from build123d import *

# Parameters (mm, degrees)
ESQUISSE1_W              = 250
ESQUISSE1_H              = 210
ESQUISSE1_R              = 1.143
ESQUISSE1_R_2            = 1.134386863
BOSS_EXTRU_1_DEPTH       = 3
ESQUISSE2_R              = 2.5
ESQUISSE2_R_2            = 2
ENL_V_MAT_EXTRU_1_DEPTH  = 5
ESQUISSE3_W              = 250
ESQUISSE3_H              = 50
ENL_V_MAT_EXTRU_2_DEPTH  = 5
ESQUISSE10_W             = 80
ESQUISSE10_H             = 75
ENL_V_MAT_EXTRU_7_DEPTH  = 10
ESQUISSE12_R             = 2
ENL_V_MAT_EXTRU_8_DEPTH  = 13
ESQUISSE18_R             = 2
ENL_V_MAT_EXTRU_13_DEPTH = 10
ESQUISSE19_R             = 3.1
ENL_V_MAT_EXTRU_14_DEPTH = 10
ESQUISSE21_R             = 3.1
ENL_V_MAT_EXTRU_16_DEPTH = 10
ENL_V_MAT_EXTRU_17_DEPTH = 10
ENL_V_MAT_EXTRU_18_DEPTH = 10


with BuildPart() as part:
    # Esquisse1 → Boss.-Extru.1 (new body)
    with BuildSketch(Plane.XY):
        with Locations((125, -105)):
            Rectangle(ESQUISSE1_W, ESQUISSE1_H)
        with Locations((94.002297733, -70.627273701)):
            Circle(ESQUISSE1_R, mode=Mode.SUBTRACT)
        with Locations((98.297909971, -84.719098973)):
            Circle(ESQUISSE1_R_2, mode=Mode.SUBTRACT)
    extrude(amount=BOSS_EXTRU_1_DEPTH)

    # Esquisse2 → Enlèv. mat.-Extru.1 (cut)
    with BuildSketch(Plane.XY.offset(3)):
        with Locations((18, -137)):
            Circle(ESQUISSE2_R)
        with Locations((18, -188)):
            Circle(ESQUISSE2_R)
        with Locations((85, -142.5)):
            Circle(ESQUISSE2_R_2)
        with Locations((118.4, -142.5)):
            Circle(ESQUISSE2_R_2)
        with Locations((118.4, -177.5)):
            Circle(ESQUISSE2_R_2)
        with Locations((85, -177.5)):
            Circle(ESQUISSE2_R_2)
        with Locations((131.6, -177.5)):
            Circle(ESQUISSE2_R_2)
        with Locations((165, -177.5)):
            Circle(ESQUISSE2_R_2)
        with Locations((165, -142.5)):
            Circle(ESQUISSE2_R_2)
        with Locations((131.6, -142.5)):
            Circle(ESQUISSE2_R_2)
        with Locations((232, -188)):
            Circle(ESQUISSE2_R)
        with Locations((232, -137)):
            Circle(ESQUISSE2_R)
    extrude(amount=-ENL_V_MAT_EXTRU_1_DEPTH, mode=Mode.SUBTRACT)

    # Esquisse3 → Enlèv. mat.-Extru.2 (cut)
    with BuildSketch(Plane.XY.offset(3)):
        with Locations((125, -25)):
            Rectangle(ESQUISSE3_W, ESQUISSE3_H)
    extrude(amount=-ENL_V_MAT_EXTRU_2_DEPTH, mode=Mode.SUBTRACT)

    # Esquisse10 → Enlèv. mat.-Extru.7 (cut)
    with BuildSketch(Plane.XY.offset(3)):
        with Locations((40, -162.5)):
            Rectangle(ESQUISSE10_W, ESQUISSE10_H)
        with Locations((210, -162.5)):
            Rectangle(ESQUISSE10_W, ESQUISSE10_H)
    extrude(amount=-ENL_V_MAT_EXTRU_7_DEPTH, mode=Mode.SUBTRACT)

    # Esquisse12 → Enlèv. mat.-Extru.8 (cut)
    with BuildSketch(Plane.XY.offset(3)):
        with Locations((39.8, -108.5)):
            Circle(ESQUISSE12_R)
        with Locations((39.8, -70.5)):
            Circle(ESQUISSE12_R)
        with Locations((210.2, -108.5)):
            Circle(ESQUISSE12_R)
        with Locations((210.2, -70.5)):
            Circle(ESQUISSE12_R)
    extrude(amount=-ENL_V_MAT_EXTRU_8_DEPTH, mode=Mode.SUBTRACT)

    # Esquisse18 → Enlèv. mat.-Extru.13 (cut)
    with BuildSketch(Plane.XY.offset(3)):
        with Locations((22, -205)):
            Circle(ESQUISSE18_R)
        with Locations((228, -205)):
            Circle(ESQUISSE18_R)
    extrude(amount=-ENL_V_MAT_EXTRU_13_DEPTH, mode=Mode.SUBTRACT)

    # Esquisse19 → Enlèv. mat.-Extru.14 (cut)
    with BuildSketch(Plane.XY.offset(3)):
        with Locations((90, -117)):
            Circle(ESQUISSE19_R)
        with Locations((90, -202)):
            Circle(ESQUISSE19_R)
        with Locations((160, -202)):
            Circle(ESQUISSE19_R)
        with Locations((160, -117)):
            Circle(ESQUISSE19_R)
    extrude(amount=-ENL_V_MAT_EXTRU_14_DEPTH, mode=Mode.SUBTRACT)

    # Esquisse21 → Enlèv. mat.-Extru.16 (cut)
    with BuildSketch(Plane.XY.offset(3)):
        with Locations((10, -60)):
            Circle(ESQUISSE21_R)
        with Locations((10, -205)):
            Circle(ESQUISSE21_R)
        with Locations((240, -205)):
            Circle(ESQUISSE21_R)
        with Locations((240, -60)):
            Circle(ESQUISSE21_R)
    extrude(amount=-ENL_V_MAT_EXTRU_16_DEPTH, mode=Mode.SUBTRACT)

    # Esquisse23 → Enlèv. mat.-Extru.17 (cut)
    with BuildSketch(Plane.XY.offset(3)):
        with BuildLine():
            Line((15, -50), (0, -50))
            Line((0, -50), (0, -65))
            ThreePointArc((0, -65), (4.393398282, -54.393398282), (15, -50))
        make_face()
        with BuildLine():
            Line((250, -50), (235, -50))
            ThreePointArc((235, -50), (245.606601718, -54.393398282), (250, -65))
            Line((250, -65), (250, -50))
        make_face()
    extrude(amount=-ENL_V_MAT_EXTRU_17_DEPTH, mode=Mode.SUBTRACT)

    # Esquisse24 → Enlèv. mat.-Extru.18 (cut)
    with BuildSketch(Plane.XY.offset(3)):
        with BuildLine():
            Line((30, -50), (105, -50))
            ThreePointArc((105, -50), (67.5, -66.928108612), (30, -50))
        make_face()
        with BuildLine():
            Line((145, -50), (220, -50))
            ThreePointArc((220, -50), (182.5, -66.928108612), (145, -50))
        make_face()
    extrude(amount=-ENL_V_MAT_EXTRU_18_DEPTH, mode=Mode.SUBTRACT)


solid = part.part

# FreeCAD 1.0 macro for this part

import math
import FreeCAD as App
import Part
import Sketcher
from FreeCAD import Vector


def add_polygon(sketch, points):
    """Adds a closed chain of lines whose ends are joined by coincident constraints."""
    first, n = sketch.GeometryCount, len(points)
    for a, b in zip(points, points[1:] + points[:1]):
        sketch.addGeometry(Part.LineSegment(App.Vector(*a, 0), App.Vector(*b, 0)), False)
    for i in range(n):
        sketch.addConstraint(Sketcher.Constraint("Coincident", first + i, 2, first + (i + 1) % n, 1))

doc = App.newDocument("Part")
body = doc.addObject("PartDesign::Body", "Body")

# Sketch on XY plane
sketch1 = body.newObject("Sketcher::SketchObject", "Sketch")
sketch1.AttachmentSupport = (doc.getObject("XY_Plane"), [""])
sketch1.MapMode = "FlatFace"
add_polygon(sketch1, [(0, 0), (0, -210), (250, -210), (250, 0)])  # lines 0-3
sketch1.addGeometry(Part.Circle(Vector(98.3, -84.7, 0), Vector(0, 0, 1), 1.1), False)  # 4
sketch1.addGeometry(Part.Circle(Vector(94, -70.6, 0), Vector(0, 0, 1), 1.1), False)  # 5
sketch1.addConstraint([
    Sketcher.Constraint("Vertical", 0),
    Sketcher.Constraint("Horizontal", 1),
    Sketcher.Constraint("Vertical", 2),
    Sketcher.Constraint("Horizontal", 3),
    Sketcher.Constraint("Coincident", 3, 2, -1, 1),
    Sketcher.Constraint("DistanceX", 1, 1, 1, 2, 250.0),
    Sketcher.Constraint("DistanceY", 0, 2, 0, 1, 210.0),
    Sketcher.Constraint("Diameter", 5, 2.286),
    Sketcher.Constraint("Diameter", 4, 2.268774),
    Sketcher.Constraint("DistanceY", 4, 3, -1, 1, 84.719099),
    Sketcher.Constraint("DistanceX", -1, 1, 4, 3, 98.29791),
    Sketcher.Constraint("DistanceX", -1, 1, 5, 3, 94.002298),
    Sketcher.Constraint("DistanceY", 5, 3, -1, 1, 70.627274),
])
pad1 = body.newObject("PartDesign::Pad", "Pad")
pad1.Profile = sketch1
pad1.Length = 3

# Sketch on XY plane
sketch2 = body.newObject("Sketcher::SketchObject", "Sketch001")
sketch2.AttachmentSupport = (doc.getObject("XY_Plane"), [""])
sketch2.MapMode = "FlatFace"
sketch2.AttachmentOffset = App.Placement(Vector(0, 0, 3), App.Rotation())
sketch2.addGeometry([
    Part.Circle(Vector(18, -137, 0), Vector(0, 0, 1), 2.5),  # 0
    Part.Circle(Vector(18, -188, 0), Vector(0, 0, 1), 2.5),  # 1
    Part.Circle(Vector(85, -142.5, 0), Vector(0, 0, 1), 2),  # 2
    Part.Circle(Vector(118.4, -142.5, 0), Vector(0, 0, 1), 2),  # 3
    Part.Circle(Vector(118.4, -177.5, 0), Vector(0, 0, 1), 2),  # 4
    Part.Circle(Vector(85, -177.5, 0), Vector(0, 0, 1), 2),  # 5
    Part.Circle(Vector(131.6, -177.5, 0), Vector(0, 0, 1), 2),  # 6
    Part.Circle(Vector(165, -177.5, 0), Vector(0, 0, 1), 2),  # 7
    Part.Circle(Vector(165, -142.5, 0), Vector(0, 0, 1), 2),  # 8
    Part.Circle(Vector(131.6, -142.5, 0), Vector(0, 0, 1), 2),  # 9
    Part.Circle(Vector(232, -188, 0), Vector(0, 0, 1), 2.5),  # 10
    Part.Circle(Vector(232, -137, 0), Vector(0, 0, 1), 2.5),  # 11
], False)
sketch2.addConstraint([
    Sketcher.Constraint("Equal", 0, 1),
    Sketcher.Constraint("Equal", 2, 3),
    Sketcher.Constraint("Equal", 3, 4),
    Sketcher.Constraint("Equal", 4, 5),
    Sketcher.Constraint("Equal", 5, 6),
    Sketcher.Constraint("Equal", 6, 7),
    Sketcher.Constraint("Equal", 7, 8),
    Sketcher.Constraint("Equal", 8, 9),
    Sketcher.Constraint("Equal", 1, 10),
    Sketcher.Constraint("Equal", 10, 11),
    Sketcher.Constraint("Horizontal", 2, 3, 3, 3),
    Sketcher.Constraint("Horizontal", 4, 3, 5, 3),
    Sketcher.Constraint("Horizontal", 5, 3, 6, 3),
    Sketcher.Constraint("Horizontal", 6, 3, 7, 3),
    Sketcher.Constraint("Horizontal", 3, 3, 8, 3),
    Sketcher.Constraint("Horizontal", 8, 3, 9, 3),
    Sketcher.Constraint("Horizontal", 1, 3, 10, 3),
    Sketcher.Constraint("Horizontal", 0, 3, 11, 3),
    Sketcher.Constraint("Vertical", 0, 3, 1, 3),
    Sketcher.Constraint("Vertical", 3, 3, 4, 3),
    Sketcher.Constraint("Vertical", 2, 3, 5, 3),
    Sketcher.Constraint("Vertical", 7, 3, 8, 3),
    Sketcher.Constraint("Vertical", 6, 3, 9, 3),
    Sketcher.Constraint("Vertical", 10, 3, 11, 3),
    Sketcher.Constraint("Diameter", 0, 5.0),
    Sketcher.Constraint("Diameter", 2, 4.0),
    Sketcher.Constraint("DistanceX", -1, 1, 0, 3, 18.0),
    Sketcher.Constraint("DistanceY", 0, 3, -1, 1, 137.0),
    Sketcher.Constraint("DistanceY", 1, 3, -1, 1, 188.0),
    Sketcher.Constraint("DistanceX", -1, 1, 2, 3, 85.0),
    Sketcher.Constraint("DistanceX", -1, 1, 7, 3, 165.0),
    Sketcher.Constraint("DistanceX", -1, 1, 10, 3, 232.0),
    Sketcher.Constraint("DistanceY", 4, 3, 3, 3, 35.0),
    Sketcher.Constraint("DistanceY", 2, 3, -1, 1, 142.5),
    Sketcher.Constraint("DistanceX", -1, 1, 3, 3, 118.4),
    Sketcher.Constraint("DistanceX", -1, 1, 6, 3, 131.6),
])
pocket1 = body.newObject("PartDesign::Pocket", "Pocket")
pocket1.Profile = sketch2
pocket1.Length = 5

# Sketch on XY plane
sketch3 = body.newObject("Sketcher::SketchObject", "Sketch002")
sketch3.AttachmentSupport = (doc.getObject("XY_Plane"), [""])
sketch3.MapMode = "FlatFace"
sketch3.AttachmentOffset = App.Placement(Vector(0, 0, 3), App.Rotation())
add_polygon(sketch3, [(0, 0), (0, -50), (250, -50), (250, 0)])  # lines 0-3
sketch3.addConstraint([
    Sketcher.Constraint("Vertical", 0),
    Sketcher.Constraint("Horizontal", 1),
    Sketcher.Constraint("Vertical", 2),
    Sketcher.Constraint("Horizontal", 3),
    Sketcher.Constraint("Coincident", 3, 2, -1, 1),
    Sketcher.Constraint("DistanceX", 1, 1, 1, 2, 250.0),
    Sketcher.Constraint("DistanceY", 0, 2, 0, 1, 50.0),
])
pocket2 = body.newObject("PartDesign::Pocket", "Pocket001")
pocket2.Profile = sketch3
pocket2.Length = 5

# Sketch on XY plane
sketch4 = body.newObject("Sketcher::SketchObject", "Sketch003")
sketch4.AttachmentSupport = (doc.getObject("XY_Plane"), [""])
sketch4.MapMode = "FlatFace"
sketch4.AttachmentOffset = App.Placement(Vector(0, 0, 3), App.Rotation())
add_polygon(sketch4, [(0, -125), (0, -200), (80, -200), (80, -125)])  # lines 0-3
add_polygon(sketch4, [(170, -125), (170, -200), (250, -200), (250, -125)])  # lines 4-7
sketch4.addConstraint([
    Sketcher.Constraint("Vertical", 0),
    Sketcher.Constraint("Horizontal", 1),
    Sketcher.Constraint("Vertical", 2),
    Sketcher.Constraint("Horizontal", 3),
    Sketcher.Constraint("Vertical", 4),
    Sketcher.Constraint("Horizontal", 5),
    Sketcher.Constraint("Vertical", 6),
    Sketcher.Constraint("Horizontal", 7),
    Sketcher.Constraint("PointOnObject", 0, 2, -2),
    Sketcher.Constraint("Horizontal", 1, 2, 4, 2),
    Sketcher.Constraint("Horizontal", 3, 2, 6, 2),
    Sketcher.Constraint("Equal", 3, 5),
    Sketcher.Constraint("DistanceX", 1, 1, 1, 2, 80.0),
    Sketcher.Constraint("DistanceY", 0, 2, 0, 1, 75.0),
    Sketcher.Constraint("DistanceY", 0, 2, -1, 1, 200.0),
    Sketcher.Constraint("DistanceX", -1, 1, 4, 2, 170.0),
])
pocket3 = body.newObject("PartDesign::Pocket", "Pocket002")
pocket3.Profile = sketch4
pocket3.Length = 10

# Sketch on XY plane
sketch5 = body.newObject("Sketcher::SketchObject", "Sketch004")
sketch5.AttachmentSupport = (doc.getObject("XY_Plane"), [""])
sketch5.MapMode = "FlatFace"
sketch5.AttachmentOffset = App.Placement(Vector(0, 0, 3), App.Rotation())
sketch5.addGeometry([
    Part.Circle(Vector(39.8, -108.5, 0), Vector(0, 0, 1), 2),
    Part.Circle(Vector(39.8, -70.5, 0), Vector(0, 0, 1), 2),
    Part.Circle(Vector(210.2, -108.5, 0), Vector(0, 0, 1), 2),
    Part.Circle(Vector(210.2, -70.5, 0), Vector(0, 0, 1), 2),
], False)
sketch5.addConstraint([
    Sketcher.Constraint("Equal", 0, 1),
    Sketcher.Constraint("Equal", 1, 2),
    Sketcher.Constraint("Equal", 2, 3),
    Sketcher.Constraint("Horizontal", 0, 3, 2, 3),
    Sketcher.Constraint("Horizontal", 1, 3, 3, 3),
    Sketcher.Constraint("Vertical", 0, 3, 1, 3),
    Sketcher.Constraint("Vertical", 2, 3, 3, 3),
    Sketcher.Constraint("Diameter", 0, 4.0),
    Sketcher.Constraint("DistanceY", 0, 3, 1, 3, 38.0),
    Sketcher.Constraint("DistanceX", -1, 1, 0, 3, 39.8),
    Sketcher.Constraint("DistanceY", 0, 3, -1, 1, 108.5),
    Sketcher.Constraint("DistanceX", -1, 1, 2, 3, 210.2),
])
pocket4 = body.newObject("PartDesign::Pocket", "Pocket003")
pocket4.Profile = sketch5
pocket4.Length = 13

# Sketch on XY plane
sketch6 = body.newObject("Sketcher::SketchObject", "Sketch005")
sketch6.AttachmentSupport = (doc.getObject("XY_Plane"), [""])
sketch6.MapMode = "FlatFace"
sketch6.AttachmentOffset = App.Placement(Vector(0, 0, 3), App.Rotation())
sketch6.addGeometry([
    Part.Circle(Vector(22, -205, 0), Vector(0, 0, 1), 2),
    Part.Circle(Vector(228, -205, 0), Vector(0, 0, 1), 2),
], False)
sketch6.addConstraint([
    Sketcher.Constraint("Equal", 0, 1),
    Sketcher.Constraint("Horizontal", 0, 3, 1, 3),
    Sketcher.Constraint("Diameter", 0, 4.0),
    Sketcher.Constraint("DistanceX", -1, 1, 0, 3, 22.0),
    Sketcher.Constraint("DistanceY", 0, 3, -1, 1, 205.0),
    Sketcher.Constraint("DistanceX", -1, 1, 1, 3, 228.0),
])
pocket5 = body.newObject("PartDesign::Pocket", "Pocket004")
pocket5.Profile = sketch6
pocket5.Length = 10

# Sketch on XY plane
sketch7 = body.newObject("Sketcher::SketchObject", "Sketch006")
sketch7.AttachmentSupport = (doc.getObject("XY_Plane"), [""])
sketch7.MapMode = "FlatFace"
sketch7.AttachmentOffset = App.Placement(Vector(0, 0, 3), App.Rotation())
sketch7.addGeometry([
    Part.Circle(Vector(90, -117, 0), Vector(0, 0, 1), 3.1),
    Part.Circle(Vector(90, -202, 0), Vector(0, 0, 1), 3.1),
    Part.Circle(Vector(160, -202, 0), Vector(0, 0, 1), 3.1),
    Part.Circle(Vector(160, -117, 0), Vector(0, 0, 1), 3.1),
], False)
sketch7.addConstraint([
    Sketcher.Constraint("Equal", 0, 1),
    Sketcher.Constraint("Equal", 1, 2),
    Sketcher.Constraint("Equal", 2, 3),
    Sketcher.Constraint("Horizontal", 1, 3, 2, 3),
    Sketcher.Constraint("Horizontal", 0, 3, 3, 3),
    Sketcher.Constraint("Vertical", 0, 3, 1, 3),
    Sketcher.Constraint("Vertical", 2, 3, 3, 3),
    Sketcher.Constraint("Diameter", 0, 6.2),
    Sketcher.Constraint("DistanceX", -1, 1, 0, 3, 90.0),
    Sketcher.Constraint("DistanceY", 0, 3, -1, 1, 117.0),
    Sketcher.Constraint("DistanceY", 1, 3, -1, 1, 202.0),
    Sketcher.Constraint("DistanceX", -1, 1, 2, 3, 160.0),
])
pocket6 = body.newObject("PartDesign::Pocket", "Pocket005")
pocket6.Profile = sketch7
pocket6.Length = 10

# Sketch on XY plane
sketch8 = body.newObject("Sketcher::SketchObject", "Sketch007")
sketch8.AttachmentSupport = (doc.getObject("XY_Plane"), [""])
sketch8.MapMode = "FlatFace"
sketch8.AttachmentOffset = App.Placement(Vector(0, 0, 3), App.Rotation())
sketch8.addGeometry([
    Part.Circle(Vector(10, -60, 0), Vector(0, 0, 1), 3.1),
    Part.Circle(Vector(10, -205, 0), Vector(0, 0, 1), 3.1),
    Part.Circle(Vector(240, -205, 0), Vector(0, 0, 1), 3.1),
    Part.Circle(Vector(240, -60, 0), Vector(0, 0, 1), 3.1),
], False)
sketch8.addConstraint([
    Sketcher.Constraint("Equal", 0, 1),
    Sketcher.Constraint("Equal", 1, 2),
    Sketcher.Constraint("Equal", 2, 3),
    Sketcher.Constraint("Horizontal", 1, 3, 2, 3),
    Sketcher.Constraint("Horizontal", 0, 3, 3, 3),
    Sketcher.Constraint("Vertical", 0, 3, 1, 3),
    Sketcher.Constraint("Vertical", 2, 3, 3, 3),
    Sketcher.Constraint("Diameter", 0, 6.2),
    Sketcher.Constraint("DistanceX", -1, 1, 0, 3, 10.0),
    Sketcher.Constraint("DistanceY", 0, 3, -1, 1, 60.0),
    Sketcher.Constraint("DistanceY", 1, 3, -1, 1, 205.0),
    Sketcher.Constraint("DistanceX", -1, 1, 2, 3, 240.0),
])
pocket7 = body.newObject("PartDesign::Pocket", "Pocket006")
pocket7.Profile = sketch8
pocket7.Length = 10

# Sketch on XY plane
sketch9 = body.newObject("Sketcher::SketchObject", "Sketch008")
sketch9.AttachmentSupport = (doc.getObject("XY_Plane"), [""])
sketch9.MapMode = "FlatFace"
sketch9.AttachmentOffset = App.Placement(Vector(0, 0, 3), App.Rotation())
sketch9.addGeometry([
    Part.LineSegment(Vector(15, -50, 0), Vector(0, -50, 0)),  # 0
    Part.LineSegment(Vector(0, -50, 0), Vector(0, -65, 0)),  # 1
    Part.ArcOfCircle(Part.Circle(Vector(15, -65, 0), Vector(0, 0, 1), 15), math.radians(90), math.radians(180)),  # 2
    Part.LineSegment(Vector(250, -50, 0), Vector(235, -50, 0)),  # 3
    Part.ArcOfCircle(Part.Circle(Vector(235, -65, 0), Vector(0, 0, 1), 15), math.radians(0), math.radians(90)),  # 4
    Part.LineSegment(Vector(250, -65, 0), Vector(250, -50, 0)),  # 5
], False)
sketch9.addConstraint([
    Sketcher.Constraint("Coincident", 0, 2, 1, 1),
    Sketcher.Constraint("Tangent", 1, 2, 2, 2),
    Sketcher.Constraint("Tangent", 2, 1, 0, 1),
    Sketcher.Constraint("Tangent", 3, 2, 4, 2),
    Sketcher.Constraint("Tangent", 4, 1, 5, 1),
    Sketcher.Constraint("Coincident", 5, 2, 3, 1),
    Sketcher.Constraint("Horizontal", 0),
    Sketcher.Constraint("Vertical", 1),
    Sketcher.Constraint("Horizontal", 3),
    Sketcher.Constraint("Vertical", 5),
    Sketcher.Constraint("Equal", 2, 4),
    Sketcher.Constraint("PointOnObject", 0, 2, -2),
    Sketcher.Constraint("Horizontal", 2, 3, 4, 3),
    Sketcher.Constraint("Radius", 2, 15.0),
    Sketcher.Constraint("DistanceY", 2, 3, -1, 1, 65.0),
    Sketcher.Constraint("DistanceX", -1, 1, 4, 3, 235.0),
])
pocket8 = body.newObject("PartDesign::Pocket", "Pocket007")
pocket8.Profile = sketch9
pocket8.Length = 10

# Sketch on XY plane
sketch10 = body.newObject("Sketcher::SketchObject", "Sketch009")
sketch10.AttachmentSupport = (doc.getObject("XY_Plane"), [""])
sketch10.MapMode = "FlatFace"
sketch10.AttachmentOffset = App.Placement(Vector(0, 0, 3), App.Rotation())
sketch10.addGeometry([
    Part.LineSegment(Vector(105, -50, 0), Vector(30, -50, 0)),
    Part.ArcOfCircle(Part.Circle(Vector(68, -17, 0), Vector(0, 0, 1), 50), math.radians(-139), math.radians(-41)),
    Part.LineSegment(Vector(220, -50, 0), Vector(145, -50, 0)),
    Part.ArcOfCircle(Part.Circle(Vector(182, -17, 0), Vector(0, 0, 1), 50), math.radians(-139), math.radians(-41)),
], False)
sketch10.addConstraint([
    Sketcher.Constraint("Coincident", 0, 1, 1, 2),
    Sketcher.Constraint("Coincident", 1, 1, 0, 2),
    Sketcher.Constraint("Coincident", 2, 1, 3, 2),
    Sketcher.Constraint("Coincident", 3, 1, 2, 2),
    Sketcher.Constraint("Horizontal", 0),
    Sketcher.Constraint("Horizontal", 2),
    Sketcher.Constraint("Equal", 1, 3),
    Sketcher.Constraint("Horizontal", 1, 3, 3, 3),
    Sketcher.Constraint("Horizontal", 1, 1, 2, 1),
    Sketcher.Constraint("Radius", 1, 50.0),
    Sketcher.Constraint("DistanceX", 0, 2, 0, 1, 75.0),
    Sketcher.Constraint("DistanceX", -1, 1, 0, 1, 105.0),
    Sketcher.Constraint("DistanceY", 0, 1, -1, 1, 50.0),
    Sketcher.Constraint("DistanceX", -1, 1, 2, 1, 220.0),
])
pocket9 = body.newObject("PartDesign::Pocket", "Pocket008")
pocket9.Profile = sketch10
pocket9.Length = 10

doc.recompute()
